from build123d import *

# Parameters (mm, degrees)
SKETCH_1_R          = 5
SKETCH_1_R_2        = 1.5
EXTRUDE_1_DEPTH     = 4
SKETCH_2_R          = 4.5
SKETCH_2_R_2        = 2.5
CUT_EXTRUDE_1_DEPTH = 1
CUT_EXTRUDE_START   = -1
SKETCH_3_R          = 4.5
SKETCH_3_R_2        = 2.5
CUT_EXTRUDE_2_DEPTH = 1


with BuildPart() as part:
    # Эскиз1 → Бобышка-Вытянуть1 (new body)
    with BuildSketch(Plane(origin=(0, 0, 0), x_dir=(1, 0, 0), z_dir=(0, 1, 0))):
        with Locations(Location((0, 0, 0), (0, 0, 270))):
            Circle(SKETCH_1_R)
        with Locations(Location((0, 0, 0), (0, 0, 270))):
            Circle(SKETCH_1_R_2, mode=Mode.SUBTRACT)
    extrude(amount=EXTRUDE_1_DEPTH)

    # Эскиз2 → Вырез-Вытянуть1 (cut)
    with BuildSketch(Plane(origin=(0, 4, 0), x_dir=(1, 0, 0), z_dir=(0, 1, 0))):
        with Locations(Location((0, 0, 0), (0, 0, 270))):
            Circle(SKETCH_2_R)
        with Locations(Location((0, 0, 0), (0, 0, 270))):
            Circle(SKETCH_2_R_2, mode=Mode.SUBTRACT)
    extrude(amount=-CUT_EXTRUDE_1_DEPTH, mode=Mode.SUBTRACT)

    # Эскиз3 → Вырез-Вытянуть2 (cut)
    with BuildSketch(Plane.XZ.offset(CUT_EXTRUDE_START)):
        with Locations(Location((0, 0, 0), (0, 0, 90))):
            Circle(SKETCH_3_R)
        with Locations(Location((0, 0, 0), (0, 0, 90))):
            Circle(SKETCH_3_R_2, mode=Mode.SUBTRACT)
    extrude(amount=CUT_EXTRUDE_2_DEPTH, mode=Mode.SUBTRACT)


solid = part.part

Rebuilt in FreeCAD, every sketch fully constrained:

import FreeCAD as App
import Part
import Sketcher

V = App.Vector

doc = App.newDocument("Part")
params = doc.addObject("Spreadsheet::Sheet", "Params")
for row, (alias, value) in enumerate([
    ("sketch1_diameter", "10 mm"),
    ("sketch1_diameter2", "3 mm"),
    ("pad1_length", "4 mm"),
    ("sketch2_diameter", "9 mm"),
    ("sketch2_diameter2", "5 mm"),
    ("pocket1_length", "1 mm"),
    ("sketch3_diameter", "9 mm"),
    ("sketch3_diameter2", "5 mm"),
    ("pocket2_length", "1 mm"),
], start=1):
    params.set(f"A{row}", alias)
    params.set(f"B{row}", "=" + value)
    params.setAlias(f"B{row}", alias)

body = doc.addObject("PartDesign::Body", "Body")

# Sketch on XZ plane
sketch1 = body.newObject("Sketcher::SketchObject", "Sketch")
sketch1.AttachmentSupport = (doc.getObject("XZ_Plane"), [""])
sketch1.MapMode = "FlatFace"
sketch1.addGeometry([
    Part.Circle(V(0, 0, 0), V(0, 0, 1), 5),
    Part.Circle(V(0, 0, 0), V(0, 0, 1), 1.5),
], False)
sketch1.addConstraint([
    Sketcher.Constraint("Coincident", 0, 3, -1, 1),
    Sketcher.Constraint("Coincident", 1, 3, -1, 1),
    Sketcher.Constraint("Diameter", 0, 10.0),
    Sketcher.Constraint("Diameter", 1, 3.0),
])
sketch1.setExpression("Constraints[2]", "Params.sketch1_diameter")
sketch1.setExpression("Constraints[3]", "Params.sketch1_diameter2")
pad1 = body.newObject("PartDesign::Pad", "Pad")
pad1.Profile = sketch1
pad1.setExpression("Length", "Params.pad1_length")
pad1.Reversed = True

# Sketch on XZ plane
sketch2 = body.newObject("Sketcher::SketchObject", "Sketch001")
sketch2.AttachmentSupport = (doc.getObject("XZ_Plane"), [""])
sketch2.MapMode = "FlatFace"
sketch2.AttachmentOffset = App.Placement(V(0, 0, -4), App.Rotation())
sketch2.addGeometry([
    Part.Circle(V(0, 0, 0), V(0, 0, 1), 4.5),
    Part.Circle(V(0, 0, 0), V(0, 0, 1), 2.5),
], False)
sketch2.addConstraint([
    Sketcher.Constraint("Coincident", 0, 3, -1, 1),
    Sketcher.Constraint("Coincident", 1, 3, -1, 1),
    Sketcher.Constraint("Diameter", 0, 9.0),
    Sketcher.Constraint("Diameter", 1, 5.0),
])
sketch2.setExpression("Constraints[2]", "Params.sketch2_diameter")
sketch2.setExpression("Constraints[3]", "Params.sketch2_diameter2")
pocket1 = body.newObject("PartDesign::Pocket", "Pocket")
pocket1.Profile = sketch2
pocket1.setExpression("Length", "Params.pocket1_length")
pocket1.Reversed = True

# Sketch on XZ plane
sketch3 = body.newObject("Sketcher::SketchObject", "Sketch002")
sketch3.AttachmentSupport = (doc.getObject("XZ_Plane"), [""])
sketch3.MapMode = "FlatFace"
sketch3.AttachmentOffset = App.Placement(V(0, 0, -1), App.Rotation())
sketch3.addGeometry([
    Part.Circle(V(0, 0, 0), V(0, 0, 1), 4.5),
    Part.Circle(V(0, 0, 0), V(0, 0, 1), 2.5),
], False)
sketch3.addConstraint([
    Sketcher.Constraint("Coincident", 0, 3, -1, 1),
    Sketcher.Constraint("Coincident", 1, 3, -1, 1),
    Sketcher.Constraint("Diameter", 0, 9.0),
    Sketcher.Constraint("Diameter", 1, 5.0),
])
sketch3.setExpression("Constraints[2]", "Params.sketch3_diameter")
sketch3.setExpression("Constraints[3]", "Params.sketch3_diameter2")
pocket2 = body.newObject("PartDesign::Pocket", "Pocket001")
pocket2.Profile = sketch3
pocket2.setExpression("Length", "Params.pocket2_length")
pocket2.Reversed = True

doc.recompute()
